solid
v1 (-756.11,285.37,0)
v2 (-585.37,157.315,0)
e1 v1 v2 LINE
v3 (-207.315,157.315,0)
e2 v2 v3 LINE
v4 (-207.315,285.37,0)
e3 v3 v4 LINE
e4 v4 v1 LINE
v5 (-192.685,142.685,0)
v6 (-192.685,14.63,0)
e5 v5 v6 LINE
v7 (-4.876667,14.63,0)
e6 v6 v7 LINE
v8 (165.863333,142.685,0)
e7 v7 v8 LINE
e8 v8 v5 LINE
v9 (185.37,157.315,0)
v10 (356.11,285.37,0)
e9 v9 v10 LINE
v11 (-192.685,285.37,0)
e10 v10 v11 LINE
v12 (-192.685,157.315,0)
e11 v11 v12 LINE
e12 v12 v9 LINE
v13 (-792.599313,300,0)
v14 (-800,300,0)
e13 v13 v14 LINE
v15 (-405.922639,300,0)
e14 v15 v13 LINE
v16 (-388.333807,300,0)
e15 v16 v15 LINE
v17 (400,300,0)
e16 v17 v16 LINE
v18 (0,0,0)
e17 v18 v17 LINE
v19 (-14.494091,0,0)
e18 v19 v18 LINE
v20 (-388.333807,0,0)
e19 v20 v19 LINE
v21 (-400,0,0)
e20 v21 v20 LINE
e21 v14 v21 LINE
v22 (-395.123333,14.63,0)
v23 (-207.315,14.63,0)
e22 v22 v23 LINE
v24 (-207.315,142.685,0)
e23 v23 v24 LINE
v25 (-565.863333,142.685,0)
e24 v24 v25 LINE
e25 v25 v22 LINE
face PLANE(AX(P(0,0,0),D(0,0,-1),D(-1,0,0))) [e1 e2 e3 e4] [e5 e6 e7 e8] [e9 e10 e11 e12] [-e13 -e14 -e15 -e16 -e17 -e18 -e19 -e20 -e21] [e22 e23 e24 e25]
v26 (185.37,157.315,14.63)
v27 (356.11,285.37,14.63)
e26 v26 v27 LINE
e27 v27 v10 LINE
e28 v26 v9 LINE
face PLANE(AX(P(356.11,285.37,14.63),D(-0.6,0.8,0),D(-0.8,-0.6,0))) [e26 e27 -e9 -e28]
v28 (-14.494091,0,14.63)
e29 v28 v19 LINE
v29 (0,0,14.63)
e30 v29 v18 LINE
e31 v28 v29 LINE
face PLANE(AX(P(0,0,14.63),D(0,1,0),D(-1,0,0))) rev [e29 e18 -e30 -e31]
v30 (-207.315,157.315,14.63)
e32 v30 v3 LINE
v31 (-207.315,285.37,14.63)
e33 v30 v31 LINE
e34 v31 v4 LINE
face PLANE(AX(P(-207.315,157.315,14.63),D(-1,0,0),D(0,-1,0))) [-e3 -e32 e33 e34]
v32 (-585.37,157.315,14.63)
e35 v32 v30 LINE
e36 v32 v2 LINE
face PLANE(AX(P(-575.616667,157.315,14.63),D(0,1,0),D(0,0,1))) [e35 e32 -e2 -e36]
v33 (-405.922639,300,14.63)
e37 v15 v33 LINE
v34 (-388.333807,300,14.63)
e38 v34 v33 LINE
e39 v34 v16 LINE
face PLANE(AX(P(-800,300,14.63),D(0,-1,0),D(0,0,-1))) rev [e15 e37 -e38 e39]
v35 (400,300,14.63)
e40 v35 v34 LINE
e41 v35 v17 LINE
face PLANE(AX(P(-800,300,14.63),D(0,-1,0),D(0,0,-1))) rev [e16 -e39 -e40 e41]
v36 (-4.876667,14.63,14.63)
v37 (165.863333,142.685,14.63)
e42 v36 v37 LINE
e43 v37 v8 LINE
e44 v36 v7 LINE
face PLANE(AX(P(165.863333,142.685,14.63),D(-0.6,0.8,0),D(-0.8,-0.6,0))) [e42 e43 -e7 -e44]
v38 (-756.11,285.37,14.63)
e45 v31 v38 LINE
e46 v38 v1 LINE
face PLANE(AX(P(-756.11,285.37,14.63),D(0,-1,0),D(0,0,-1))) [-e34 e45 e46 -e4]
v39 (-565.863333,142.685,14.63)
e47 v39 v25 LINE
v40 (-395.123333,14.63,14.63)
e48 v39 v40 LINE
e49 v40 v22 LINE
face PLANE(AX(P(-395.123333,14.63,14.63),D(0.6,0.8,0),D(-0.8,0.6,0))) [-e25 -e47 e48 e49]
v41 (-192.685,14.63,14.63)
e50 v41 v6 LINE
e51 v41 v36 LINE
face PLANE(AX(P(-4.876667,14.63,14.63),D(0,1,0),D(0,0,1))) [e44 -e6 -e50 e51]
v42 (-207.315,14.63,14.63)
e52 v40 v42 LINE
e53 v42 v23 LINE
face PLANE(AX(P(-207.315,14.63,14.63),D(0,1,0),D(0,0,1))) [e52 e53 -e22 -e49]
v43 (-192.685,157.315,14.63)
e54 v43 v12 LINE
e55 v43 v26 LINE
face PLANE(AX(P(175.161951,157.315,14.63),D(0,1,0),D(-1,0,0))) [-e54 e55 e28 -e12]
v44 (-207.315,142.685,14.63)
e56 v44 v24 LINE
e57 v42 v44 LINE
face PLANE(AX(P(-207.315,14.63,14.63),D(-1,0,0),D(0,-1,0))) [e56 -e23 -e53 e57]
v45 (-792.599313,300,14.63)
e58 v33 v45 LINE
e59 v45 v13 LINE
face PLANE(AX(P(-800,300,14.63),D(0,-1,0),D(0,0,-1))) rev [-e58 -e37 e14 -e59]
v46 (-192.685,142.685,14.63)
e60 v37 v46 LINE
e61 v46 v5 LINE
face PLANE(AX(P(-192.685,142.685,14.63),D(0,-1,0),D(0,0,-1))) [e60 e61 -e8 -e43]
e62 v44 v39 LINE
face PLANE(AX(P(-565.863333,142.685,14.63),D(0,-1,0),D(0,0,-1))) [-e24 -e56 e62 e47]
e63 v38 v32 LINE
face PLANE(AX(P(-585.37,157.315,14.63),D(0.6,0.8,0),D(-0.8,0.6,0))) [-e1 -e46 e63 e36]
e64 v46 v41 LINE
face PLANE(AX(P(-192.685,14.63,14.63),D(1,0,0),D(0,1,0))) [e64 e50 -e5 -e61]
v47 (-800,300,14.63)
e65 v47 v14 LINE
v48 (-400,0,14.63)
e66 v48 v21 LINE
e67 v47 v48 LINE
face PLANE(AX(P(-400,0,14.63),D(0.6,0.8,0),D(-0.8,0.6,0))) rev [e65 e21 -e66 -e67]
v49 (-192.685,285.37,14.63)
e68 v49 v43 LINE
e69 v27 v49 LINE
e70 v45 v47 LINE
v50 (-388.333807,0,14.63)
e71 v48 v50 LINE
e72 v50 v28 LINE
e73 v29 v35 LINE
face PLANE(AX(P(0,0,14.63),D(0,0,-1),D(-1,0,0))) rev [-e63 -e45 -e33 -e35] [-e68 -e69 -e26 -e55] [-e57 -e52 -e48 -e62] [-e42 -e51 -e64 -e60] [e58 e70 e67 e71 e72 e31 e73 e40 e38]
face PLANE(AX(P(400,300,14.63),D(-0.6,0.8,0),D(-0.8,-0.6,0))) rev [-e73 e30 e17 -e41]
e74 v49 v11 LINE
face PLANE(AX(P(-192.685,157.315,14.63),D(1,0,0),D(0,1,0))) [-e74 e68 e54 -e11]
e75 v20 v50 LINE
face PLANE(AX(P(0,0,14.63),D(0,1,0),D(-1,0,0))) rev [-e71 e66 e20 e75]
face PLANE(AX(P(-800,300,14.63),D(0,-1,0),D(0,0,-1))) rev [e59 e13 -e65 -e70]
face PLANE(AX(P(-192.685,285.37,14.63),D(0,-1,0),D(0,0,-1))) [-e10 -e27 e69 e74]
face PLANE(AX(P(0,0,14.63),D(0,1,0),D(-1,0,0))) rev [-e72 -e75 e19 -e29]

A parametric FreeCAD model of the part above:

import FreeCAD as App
import Part
import Sketcher


def add_polygon(sketch, points):
    """Adds a closed chain of lines whose ends are joined by coincident constraints."""
    first, n = sketch.GeometryCount, len(points)
    for a, b in zip(points, points[1:] + points[:1]):
        sketch.addGeometry(Part.LineSegment(App.Vector(*a, 0), App.Vector(*b, 0)), False)
    for i in range(n):
        sketch.addConstraint(Sketcher.Constraint("Coincident", first + i, 2, first + (i + 1) % n, 1))

doc = App.newDocument("Part")
body = doc.addObject("PartDesign::Body", "Body")

# Sketch on XY plane
sketch1 = body.newObject("Sketcher::SketchObject", "Sketch")
sketch1.AttachmentSupport = (doc.getObject("XY_Plane"), [""])
sketch1.MapMode = "FlatFace"
add_polygon(sketch1, [(-400, 0), (0, 0), (400, 300), (-800, 300)])  # lines 0-3
add_polygon(sketch1, [(-4.876667, 14.63), (-192.685, 14.63), (-192.685, 142.685), (165.863333, 142.685)])  # lines 4-7
add_polygon(sketch1, [(-565.863333, 142.685), (-207.315, 142.685), (-207.315, 14.63), (-395.123333, 14.63)])  # lines 8-11
add_polygon(sketch1, [(356.11, 285.37), (185.37, 157.315), (-192.685, 157.315), (-192.685, 285.37)])  # lines 12-15
add_polygon(sketch1, [(-585.37, 157.315), (-756.11, 285.37), (-207.315, 285.37), (-207.315, 157.315)])  # lines 16-19
sketch1.addConstraint([
    Sketcher.Constraint("Horizontal", 0),
    Sketcher.Constraint("Horizontal", 2),
    Sketcher.Constraint("Horizontal", 4),
    Sketcher.Constraint("Vertical", 5),
    Sketcher.Constraint("Horizontal", 6),
    Sketcher.Constraint("Horizontal", 8),
    Sketcher.Constraint("Vertical", 9),
    Sketcher.Constraint("Horizontal", 10),
    Sketcher.Constraint("Horizontal", 13),
    Sketcher.Constraint("Vertical", 14),
    Sketcher.Constraint("Horizontal", 15),
    Sketcher.Constraint("Horizontal", 17),
    Sketcher.Constraint("Vertical", 18),
    Sketcher.Constraint("Horizontal", 19),
    Sketcher.Constraint("Coincident", 0, 2, -1, 1),
    Sketcher.Constraint("Parallel", 1, 7),
    Sketcher.Constraint("Parallel", 3, 11),
    Sketcher.Constraint("Parallel", 7, 12),
    Sketcher.Constraint("Parallel", 11, 16),
    Sketcher.Constraint("Horizontal", 6, 2, 8, 2),
    Sketcher.Constraint("Horizontal", 7, 2, 9, 2),
    Sketcher.Constraint("Horizontal", 15, 2, 16, 2),
    Sketcher.Constraint("Horizontal", 13, 2, 18, 2),
    Sketcher.Constraint("Vertical", 5, 2, 13, 2),
    Sketcher.Constraint("Vertical", 9, 2, 17, 2),
    Sketcher.Constraint("Equal", 6, 8),
    Sketcher.Constraint("Equal", 4, 10),
    Sketcher.Constraint("Equal", 15, 17),
    Sketcher.Constraint("Equal", 9, 14),
    Sketcher.Constraint("DistanceX", 0, 1, 0, 2, 400.0),
    Sketcher.Constraint("DistanceX", 2, 2, 2, 1, 1200.0),
    Sketcher.Constraint("Distance", 1, 500.0),
    Sketcher.Constraint("DistanceX", 13, 2, 13, 1, 378.055),
    Sketcher.Constraint("DistanceX", 15, 1, 15, 2, 548.795),
    Sketcher.Constraint("DistanceY", -1, 1, 4, 2, 14.63),
    Sketcher.Constraint("DistanceX", -1, 1, 12, 2, 185.37),
    Sketcher.Constraint("DistanceY", -1, 1, 14, 2, 285.37),
    Sketcher.Constraint("DistanceX", 16, 2, -1, 1, 756.11),
    Sketcher.Constraint("DistanceX", 4, 2, 4, 1, 187.808333),
])
pad1 = body.newObject("PartDesign::Pad", "Pad")
pad1.Profile = sketch1
pad1.Length = 14.63

doc.recompute()
